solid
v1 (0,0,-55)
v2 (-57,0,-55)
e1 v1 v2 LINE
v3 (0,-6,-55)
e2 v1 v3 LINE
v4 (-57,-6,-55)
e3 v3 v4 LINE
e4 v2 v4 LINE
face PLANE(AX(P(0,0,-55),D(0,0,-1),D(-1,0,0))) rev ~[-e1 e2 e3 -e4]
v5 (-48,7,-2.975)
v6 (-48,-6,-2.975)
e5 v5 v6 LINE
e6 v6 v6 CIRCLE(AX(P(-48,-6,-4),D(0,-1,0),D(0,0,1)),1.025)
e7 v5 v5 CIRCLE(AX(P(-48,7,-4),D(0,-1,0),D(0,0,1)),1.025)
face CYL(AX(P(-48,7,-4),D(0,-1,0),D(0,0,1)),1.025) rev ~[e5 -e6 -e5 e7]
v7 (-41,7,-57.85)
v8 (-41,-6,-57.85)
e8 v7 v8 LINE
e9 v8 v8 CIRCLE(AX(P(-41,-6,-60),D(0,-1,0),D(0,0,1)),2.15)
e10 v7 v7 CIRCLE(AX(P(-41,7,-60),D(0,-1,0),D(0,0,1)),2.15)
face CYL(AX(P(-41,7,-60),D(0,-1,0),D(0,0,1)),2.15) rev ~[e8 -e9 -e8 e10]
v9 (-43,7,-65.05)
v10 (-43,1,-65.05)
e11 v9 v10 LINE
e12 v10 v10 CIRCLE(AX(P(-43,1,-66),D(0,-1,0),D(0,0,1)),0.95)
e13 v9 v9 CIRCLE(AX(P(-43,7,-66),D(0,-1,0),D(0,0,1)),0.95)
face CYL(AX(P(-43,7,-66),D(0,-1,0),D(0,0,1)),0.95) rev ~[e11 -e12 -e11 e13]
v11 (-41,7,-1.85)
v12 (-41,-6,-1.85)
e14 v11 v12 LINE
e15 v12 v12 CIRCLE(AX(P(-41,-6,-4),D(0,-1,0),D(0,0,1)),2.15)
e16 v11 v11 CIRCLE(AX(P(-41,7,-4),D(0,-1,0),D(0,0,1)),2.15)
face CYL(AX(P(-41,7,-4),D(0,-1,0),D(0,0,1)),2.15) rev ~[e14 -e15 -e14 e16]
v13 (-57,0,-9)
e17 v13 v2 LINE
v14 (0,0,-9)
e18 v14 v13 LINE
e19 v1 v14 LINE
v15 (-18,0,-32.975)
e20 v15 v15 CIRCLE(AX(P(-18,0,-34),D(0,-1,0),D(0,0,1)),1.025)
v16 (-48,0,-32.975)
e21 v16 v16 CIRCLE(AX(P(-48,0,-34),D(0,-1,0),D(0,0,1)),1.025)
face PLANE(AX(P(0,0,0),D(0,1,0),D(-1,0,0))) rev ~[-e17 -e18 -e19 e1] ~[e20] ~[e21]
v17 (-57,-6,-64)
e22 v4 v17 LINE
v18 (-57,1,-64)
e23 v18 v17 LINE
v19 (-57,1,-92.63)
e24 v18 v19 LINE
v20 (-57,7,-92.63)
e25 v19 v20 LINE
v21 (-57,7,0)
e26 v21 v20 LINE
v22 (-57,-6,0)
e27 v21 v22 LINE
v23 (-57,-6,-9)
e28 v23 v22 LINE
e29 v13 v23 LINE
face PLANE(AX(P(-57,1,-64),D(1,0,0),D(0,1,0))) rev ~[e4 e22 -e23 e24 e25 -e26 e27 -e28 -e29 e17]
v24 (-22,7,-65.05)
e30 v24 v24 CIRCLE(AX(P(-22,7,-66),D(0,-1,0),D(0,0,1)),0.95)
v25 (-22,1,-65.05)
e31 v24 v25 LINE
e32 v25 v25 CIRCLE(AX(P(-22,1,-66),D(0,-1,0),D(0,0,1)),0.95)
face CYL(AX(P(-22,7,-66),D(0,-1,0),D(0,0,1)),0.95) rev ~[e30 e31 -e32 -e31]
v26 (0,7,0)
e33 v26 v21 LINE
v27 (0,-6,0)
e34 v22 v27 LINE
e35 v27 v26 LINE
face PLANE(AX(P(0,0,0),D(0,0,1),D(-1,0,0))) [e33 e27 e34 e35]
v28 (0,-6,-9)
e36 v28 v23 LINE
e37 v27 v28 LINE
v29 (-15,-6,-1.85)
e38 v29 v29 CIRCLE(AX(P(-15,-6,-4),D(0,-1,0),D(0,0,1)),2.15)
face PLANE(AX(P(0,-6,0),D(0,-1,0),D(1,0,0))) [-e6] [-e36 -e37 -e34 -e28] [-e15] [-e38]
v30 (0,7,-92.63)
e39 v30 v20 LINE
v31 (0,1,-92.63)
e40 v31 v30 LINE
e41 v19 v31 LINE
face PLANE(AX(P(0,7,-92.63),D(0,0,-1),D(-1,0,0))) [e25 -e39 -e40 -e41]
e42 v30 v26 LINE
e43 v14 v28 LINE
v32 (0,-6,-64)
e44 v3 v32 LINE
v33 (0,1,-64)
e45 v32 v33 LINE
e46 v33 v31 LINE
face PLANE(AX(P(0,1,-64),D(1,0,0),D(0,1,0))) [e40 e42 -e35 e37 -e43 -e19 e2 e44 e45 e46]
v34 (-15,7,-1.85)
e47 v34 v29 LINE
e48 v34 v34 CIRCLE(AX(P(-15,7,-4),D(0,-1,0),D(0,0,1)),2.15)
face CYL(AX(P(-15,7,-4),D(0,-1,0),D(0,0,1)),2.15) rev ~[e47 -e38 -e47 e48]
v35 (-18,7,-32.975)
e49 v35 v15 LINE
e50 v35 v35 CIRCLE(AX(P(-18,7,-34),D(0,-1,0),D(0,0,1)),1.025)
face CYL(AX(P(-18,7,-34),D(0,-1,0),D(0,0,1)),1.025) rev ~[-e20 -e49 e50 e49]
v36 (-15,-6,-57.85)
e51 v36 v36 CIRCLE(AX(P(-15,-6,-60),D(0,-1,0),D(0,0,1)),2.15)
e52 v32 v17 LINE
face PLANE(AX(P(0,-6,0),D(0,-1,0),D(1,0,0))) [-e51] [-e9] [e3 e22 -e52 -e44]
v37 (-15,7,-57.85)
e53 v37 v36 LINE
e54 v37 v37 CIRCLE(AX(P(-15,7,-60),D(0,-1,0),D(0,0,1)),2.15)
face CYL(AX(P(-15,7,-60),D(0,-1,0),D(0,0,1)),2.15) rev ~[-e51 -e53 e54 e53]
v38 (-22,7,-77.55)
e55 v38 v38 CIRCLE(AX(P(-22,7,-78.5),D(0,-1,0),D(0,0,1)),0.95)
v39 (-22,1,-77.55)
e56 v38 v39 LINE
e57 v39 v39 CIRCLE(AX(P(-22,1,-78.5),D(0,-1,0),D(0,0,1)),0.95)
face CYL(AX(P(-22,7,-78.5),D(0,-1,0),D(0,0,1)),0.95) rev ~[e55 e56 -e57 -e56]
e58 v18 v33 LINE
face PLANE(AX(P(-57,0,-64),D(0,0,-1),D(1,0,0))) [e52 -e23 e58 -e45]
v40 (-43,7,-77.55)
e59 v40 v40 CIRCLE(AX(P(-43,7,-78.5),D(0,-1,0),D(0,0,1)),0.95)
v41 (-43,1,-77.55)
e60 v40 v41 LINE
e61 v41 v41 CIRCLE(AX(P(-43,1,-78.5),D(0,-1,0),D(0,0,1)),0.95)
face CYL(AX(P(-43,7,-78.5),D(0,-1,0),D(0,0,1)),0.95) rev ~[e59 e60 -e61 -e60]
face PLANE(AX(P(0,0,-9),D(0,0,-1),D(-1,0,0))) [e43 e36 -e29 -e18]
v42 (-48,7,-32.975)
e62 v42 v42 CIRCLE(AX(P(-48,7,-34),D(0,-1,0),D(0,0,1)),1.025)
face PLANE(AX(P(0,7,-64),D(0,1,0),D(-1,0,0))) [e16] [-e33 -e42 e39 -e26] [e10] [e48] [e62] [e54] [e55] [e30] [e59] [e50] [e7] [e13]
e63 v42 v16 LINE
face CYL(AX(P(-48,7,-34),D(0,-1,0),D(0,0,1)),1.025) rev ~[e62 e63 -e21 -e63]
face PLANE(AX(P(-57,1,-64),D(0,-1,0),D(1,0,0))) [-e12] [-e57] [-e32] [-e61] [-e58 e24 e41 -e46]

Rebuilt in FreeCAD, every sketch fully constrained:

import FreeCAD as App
import Part
import Sketcher
from FreeCAD import Vector
Q = App.Units.Quantity


def add_polygon(sketch, points):
    """Adds a closed chain of lines whose ends are joined by coincident constraints."""
    first, n = sketch.GeometryCount, len(points)
    for a, b in zip(points, points[1:] + points[:1]):
        sketch.addGeometry(Part.LineSegment(App.Vector(*a, 0), App.Vector(*b, 0)), False)
    for i in range(n):
        sketch.addConstraint(Sketcher.Constraint("Coincident", first + i, 2, first + (i + 1) % n, 1))

doc = App.newDocument("Part")
body = doc.addObject("PartDesign::Body", "Body")

# Sketch on XZ plane
sketch1 = body.newObject("Sketcher::SketchObject", "Sketch")
sketch1.AttachmentSupport = (doc.getObject("XZ_Plane"), [""])
sketch1.MapMode = "FlatFace"
add_polygon(sketch1, [(-57, 0), (0, 0), (0, -64), (-57, -64)])  # lines 0-3
sketch1.addConstraint([
    Sketcher.Constraint("Horizontal", 0),
    Sketcher.Constraint("Vertical", 1),
    Sketcher.Constraint("Horizontal", 2),
    Sketcher.Constraint("Vertical", 3),
    Sketcher.Constraint("Coincident", 0, 2, -1, 1),
    Sketcher.Constraint("DistanceX", 0, 1, 0, 2, Q("57 mm")),
    Sketcher.Constraint("DistanceY", 1, 2, 1, 1, Q("64 mm")),
])
pad1 = body.newObject("PartDesign::Pad", "Pad")
pad1.Profile = sketch1
pad1.Length = 7
pad1.Reversed = True

# Sketch on XZ plane
sketch2 = body.newObject("Sketcher::SketchObject", "Sketch001")
sketch2.AttachmentSupport = (doc.getObject("XZ_Plane"), [""])
sketch2.MapMode = "FlatFace"
add_polygon(sketch2, [(-57, -64), (0, -64), (0, -55), (-57, -55)])  # lines 0-3
add_polygon(sketch2, [(-57, -9), (0, -9), (0, 0), (-57, 0)])  # lines 4-7
sketch2.addConstraint([
    Sketcher.Constraint("Horizontal", 0),
    Sketcher.Constraint("Vertical", 1),
    Sketcher.Constraint("Horizontal", 2),
    Sketcher.Constraint("Vertical", 3),
    Sketcher.Constraint("Horizontal", 4),
    Sketcher.Constraint("Vertical", 5),
    Sketcher.Constraint("Horizontal", 6),
    Sketcher.Constraint("Vertical", 7),
    Sketcher.Constraint("Coincident", 5, 2, -1, 1),
    Sketcher.Constraint("PointOnObject", 0, 2, -2),
    Sketcher.Constraint("Vertical", 3, 2, 6, 2),
    Sketcher.Constraint("Equal", 3, 5),
    Sketcher.Constraint("DistanceY", 1, 1, 1, 2, Q("9 mm")),
    Sketcher.Constraint("DistanceX", 0, 1, 0, 2, Q("57 mm")),
    Sketcher.Constraint("DistanceY", 0, 2, -1, 1, Q("64 mm")),
])
pad2 = body.newObject("PartDesign::Pad", "Pad001")
pad2.Profile = sketch2
pad2.Length = 6

# Sketch on XZ plane
sketch3 = body.newObject("Sketcher::SketchObject", "Sketch002")
sketch3.AttachmentSupport = (doc.getObject("XZ_Plane"), [""])
sketch3.MapMode = "FlatFace"
sketch3.AttachmentOffset = App.Placement(Vector(0, 0, -7), App.Rotation())
sketch3.addGeometry([
    Part.Circle(Vector(-41, -4, 0), Vector(0, 0, 1), 2.1),
    Part.Circle(Vector(-15, -4, 0), Vector(0, 0, 1), 2.1),
    Part.Circle(Vector(-41, -60, 0), Vector(0, 0, 1), 2.1),
    Part.Circle(Vector(-15, -60, 0), Vector(0, 0, 1), 2.1),
], False)
sketch3.addConstraint([
    Sketcher.Constraint("Equal", 0, 1),
    Sketcher.Constraint("Equal", 1, 2),
    Sketcher.Constraint("Equal", 2, 3),
    Sketcher.Constraint("Horizontal", 0, 3, 1, 3),
    Sketcher.Constraint("Horizontal", 2, 3, 3, 3),
    Sketcher.Constraint("Vertical", 0, 3, 2, 3),
    Sketcher.Constraint("Vertical", 1, 3, 3, 3),
    Sketcher.Constraint("Diameter", 0, Q("4.3 mm")),
    Sketcher.Constraint("DistanceX", 0, 3, -1, 1, Q("41 mm")),
    Sketcher.Constraint("DistanceY", 0, 3, -1, 1, Q("4 mm")),
    Sketcher.Constraint("DistanceX", 1, 3, -1, 1, Q("15 mm")),
    Sketcher.Constraint("DistanceY", 2, 3, -1, 1, Q("60 mm")),
])
doc.recompute()
hole = body.newObject("PartDesign::Hole", "Hole")
hole.Profile = sketch3
hole.ThreadType = "None"
hole.Diameter = 4.3
hole.DepthType = "ThroughAll"
hole.Reversed = True

# Sketch on XZ plane
sketch4 = body.newObject("Sketcher::SketchObject", "Sketch003")
sketch4.AttachmentSupport = (doc.getObject("XZ_Plane"), [""])
sketch4.MapMode = "FlatFace"
sketch4.AttachmentOffset = App.Placement(Vector(0, 0, -7), App.Rotation())
sketch4.addGeometry([
    Part.Circle(Vector(-48, -4, 0), Vector(0, 0, 1), 1),
    Part.Circle(Vector(-48, -34, 0), Vector(0, 0, 1), 1),
    Part.Circle(Vector(-18, -34, 0), Vector(0, 0, 1), 1),
], False)
sketch4.addConstraint([
    Sketcher.Constraint("Equal", 0, 1),
    Sketcher.Constraint("Equal", 1, 2),
    Sketcher.Constraint("Horizontal", 1, 3, 2, 3),
    Sketcher.Constraint("Vertical", 0, 3, 1, 3),
    Sketcher.Constraint("Diameter", 0, Q("2.05 mm")),
    Sketcher.Constraint("DistanceX", 0, 3, -1, 1, Q("48 mm")),
    Sketcher.Constraint("DistanceY", 0, 3, -1, 1, Q("4 mm")),
    Sketcher.Constraint("DistanceY", 1, 3, -1, 1, Q("34 mm")),
    Sketcher.Constraint("DistanceX", 2, 3, -1, 1, Q("18 mm")),
])
doc.recompute()
hole2 = body.newObject("PartDesign::Hole", "Hole001")
hole2.Profile = sketch4
hole2.ThreadType = "None"
hole2.Diameter = 2.05
hole2.DepthType = "ThroughAll"
hole2.Reversed = True

# Sketch on XY plane
sketch5 = body.newObject("Sketcher::SketchObject", "Sketch004")
sketch5.AttachmentSupport = (doc.getObject("XY_Plane"), [""])
sketch5.MapMode = "FlatFace"
sketch5.AttachmentOffset = App.Placement(Vector(0, 0, -64), App.Rotation())
add_polygon(sketch5, [(0, 1), (-57, 1), (-57, 7), (0, 7)])  # lines 0-3
sketch5.addConstraint([
    Sketcher.Constraint("Horizontal", 0),
    Sketcher.Constraint("Vertical", 1),
    Sketcher.Constraint("Horizontal", 2),
    Sketcher.Constraint("Vertical", 3),
    Sketcher.Constraint("PointOnObject", 2, 2, -2),
    Sketcher.Constraint("DistanceY", 1, 1, 1, 2, Q("6 mm")),
    Sketcher.Constraint("DistanceX", 0, 2, 0, 1, Q("57 mm")),
    Sketcher.Constraint("DistanceY", -1, 1, 0, 2, Q("1 mm")),
])
pad3 = body.newObject("PartDesign::Pad", "Pad002")
pad3.Profile = sketch5
pad3.Length = 28.63
pad3.Reversed = True

# Sketch on XZ plane
sketch6 = body.newObject("Sketcher::SketchObject", "Sketch005")
sketch6.AttachmentSupport = (doc.getObject("XZ_Plane"), [""])
sketch6.MapMode = "FlatFace"
sketch6.AttachmentOffset = App.Placement(Vector(0, 0, -7), App.Rotation())
sketch6.addGeometry([
    Part.Circle(Vector(-43, -66, 0), Vector(0, 0, 1), 0.9),
    Part.Circle(Vector(-22, -66, 0), Vector(0, 0, 1), 0.9),
    Part.Circle(Vector(-43, -78.5, 0), Vector(0, 0, 1), 0.9),
    Part.Circle(Vector(-22, -78.5, 0), Vector(0, 0, 1), 0.9),
], False)
sketch6.addConstraint([
    Sketcher.Constraint("Equal", 0, 1),
    Sketcher.Constraint("Equal", 1, 2),
    Sketcher.Constraint("Equal", 2, 3),
    Sketcher.Constraint("Horizontal", 0, 3, 1, 3),
    Sketcher.Constraint("Horizontal", 2, 3, 3, 3),
    Sketcher.Constraint("Vertical", 0, 3, 2, 3),
    Sketcher.Constraint("Vertical", 1, 3, 3, 3),
    Sketcher.Constraint("Diameter", 0, Q("1.9 mm")),
    Sketcher.Constraint("DistanceX", 0, 3, -1, 1, Q("43 mm")),
    Sketcher.Constraint("DistanceY", 0, 3, -1, 1, Q("66 mm")),
    Sketcher.Constraint("DistanceX", 1, 3, -1, 1, Q("22 mm")),
    Sketcher.Constraint("DistanceY", 2, 3, -1, 1, Q("78.5 mm")),
])
doc.recompute()
hole3 = body.newObject("PartDesign::Hole", "Hole002")
hole3.Profile = sketch6
hole3.ThreadType = "None"
hole3.Diameter = 1.9
hole3.DepthType = "ThroughAll"
hole3.Reversed = True

doc.recompute()
